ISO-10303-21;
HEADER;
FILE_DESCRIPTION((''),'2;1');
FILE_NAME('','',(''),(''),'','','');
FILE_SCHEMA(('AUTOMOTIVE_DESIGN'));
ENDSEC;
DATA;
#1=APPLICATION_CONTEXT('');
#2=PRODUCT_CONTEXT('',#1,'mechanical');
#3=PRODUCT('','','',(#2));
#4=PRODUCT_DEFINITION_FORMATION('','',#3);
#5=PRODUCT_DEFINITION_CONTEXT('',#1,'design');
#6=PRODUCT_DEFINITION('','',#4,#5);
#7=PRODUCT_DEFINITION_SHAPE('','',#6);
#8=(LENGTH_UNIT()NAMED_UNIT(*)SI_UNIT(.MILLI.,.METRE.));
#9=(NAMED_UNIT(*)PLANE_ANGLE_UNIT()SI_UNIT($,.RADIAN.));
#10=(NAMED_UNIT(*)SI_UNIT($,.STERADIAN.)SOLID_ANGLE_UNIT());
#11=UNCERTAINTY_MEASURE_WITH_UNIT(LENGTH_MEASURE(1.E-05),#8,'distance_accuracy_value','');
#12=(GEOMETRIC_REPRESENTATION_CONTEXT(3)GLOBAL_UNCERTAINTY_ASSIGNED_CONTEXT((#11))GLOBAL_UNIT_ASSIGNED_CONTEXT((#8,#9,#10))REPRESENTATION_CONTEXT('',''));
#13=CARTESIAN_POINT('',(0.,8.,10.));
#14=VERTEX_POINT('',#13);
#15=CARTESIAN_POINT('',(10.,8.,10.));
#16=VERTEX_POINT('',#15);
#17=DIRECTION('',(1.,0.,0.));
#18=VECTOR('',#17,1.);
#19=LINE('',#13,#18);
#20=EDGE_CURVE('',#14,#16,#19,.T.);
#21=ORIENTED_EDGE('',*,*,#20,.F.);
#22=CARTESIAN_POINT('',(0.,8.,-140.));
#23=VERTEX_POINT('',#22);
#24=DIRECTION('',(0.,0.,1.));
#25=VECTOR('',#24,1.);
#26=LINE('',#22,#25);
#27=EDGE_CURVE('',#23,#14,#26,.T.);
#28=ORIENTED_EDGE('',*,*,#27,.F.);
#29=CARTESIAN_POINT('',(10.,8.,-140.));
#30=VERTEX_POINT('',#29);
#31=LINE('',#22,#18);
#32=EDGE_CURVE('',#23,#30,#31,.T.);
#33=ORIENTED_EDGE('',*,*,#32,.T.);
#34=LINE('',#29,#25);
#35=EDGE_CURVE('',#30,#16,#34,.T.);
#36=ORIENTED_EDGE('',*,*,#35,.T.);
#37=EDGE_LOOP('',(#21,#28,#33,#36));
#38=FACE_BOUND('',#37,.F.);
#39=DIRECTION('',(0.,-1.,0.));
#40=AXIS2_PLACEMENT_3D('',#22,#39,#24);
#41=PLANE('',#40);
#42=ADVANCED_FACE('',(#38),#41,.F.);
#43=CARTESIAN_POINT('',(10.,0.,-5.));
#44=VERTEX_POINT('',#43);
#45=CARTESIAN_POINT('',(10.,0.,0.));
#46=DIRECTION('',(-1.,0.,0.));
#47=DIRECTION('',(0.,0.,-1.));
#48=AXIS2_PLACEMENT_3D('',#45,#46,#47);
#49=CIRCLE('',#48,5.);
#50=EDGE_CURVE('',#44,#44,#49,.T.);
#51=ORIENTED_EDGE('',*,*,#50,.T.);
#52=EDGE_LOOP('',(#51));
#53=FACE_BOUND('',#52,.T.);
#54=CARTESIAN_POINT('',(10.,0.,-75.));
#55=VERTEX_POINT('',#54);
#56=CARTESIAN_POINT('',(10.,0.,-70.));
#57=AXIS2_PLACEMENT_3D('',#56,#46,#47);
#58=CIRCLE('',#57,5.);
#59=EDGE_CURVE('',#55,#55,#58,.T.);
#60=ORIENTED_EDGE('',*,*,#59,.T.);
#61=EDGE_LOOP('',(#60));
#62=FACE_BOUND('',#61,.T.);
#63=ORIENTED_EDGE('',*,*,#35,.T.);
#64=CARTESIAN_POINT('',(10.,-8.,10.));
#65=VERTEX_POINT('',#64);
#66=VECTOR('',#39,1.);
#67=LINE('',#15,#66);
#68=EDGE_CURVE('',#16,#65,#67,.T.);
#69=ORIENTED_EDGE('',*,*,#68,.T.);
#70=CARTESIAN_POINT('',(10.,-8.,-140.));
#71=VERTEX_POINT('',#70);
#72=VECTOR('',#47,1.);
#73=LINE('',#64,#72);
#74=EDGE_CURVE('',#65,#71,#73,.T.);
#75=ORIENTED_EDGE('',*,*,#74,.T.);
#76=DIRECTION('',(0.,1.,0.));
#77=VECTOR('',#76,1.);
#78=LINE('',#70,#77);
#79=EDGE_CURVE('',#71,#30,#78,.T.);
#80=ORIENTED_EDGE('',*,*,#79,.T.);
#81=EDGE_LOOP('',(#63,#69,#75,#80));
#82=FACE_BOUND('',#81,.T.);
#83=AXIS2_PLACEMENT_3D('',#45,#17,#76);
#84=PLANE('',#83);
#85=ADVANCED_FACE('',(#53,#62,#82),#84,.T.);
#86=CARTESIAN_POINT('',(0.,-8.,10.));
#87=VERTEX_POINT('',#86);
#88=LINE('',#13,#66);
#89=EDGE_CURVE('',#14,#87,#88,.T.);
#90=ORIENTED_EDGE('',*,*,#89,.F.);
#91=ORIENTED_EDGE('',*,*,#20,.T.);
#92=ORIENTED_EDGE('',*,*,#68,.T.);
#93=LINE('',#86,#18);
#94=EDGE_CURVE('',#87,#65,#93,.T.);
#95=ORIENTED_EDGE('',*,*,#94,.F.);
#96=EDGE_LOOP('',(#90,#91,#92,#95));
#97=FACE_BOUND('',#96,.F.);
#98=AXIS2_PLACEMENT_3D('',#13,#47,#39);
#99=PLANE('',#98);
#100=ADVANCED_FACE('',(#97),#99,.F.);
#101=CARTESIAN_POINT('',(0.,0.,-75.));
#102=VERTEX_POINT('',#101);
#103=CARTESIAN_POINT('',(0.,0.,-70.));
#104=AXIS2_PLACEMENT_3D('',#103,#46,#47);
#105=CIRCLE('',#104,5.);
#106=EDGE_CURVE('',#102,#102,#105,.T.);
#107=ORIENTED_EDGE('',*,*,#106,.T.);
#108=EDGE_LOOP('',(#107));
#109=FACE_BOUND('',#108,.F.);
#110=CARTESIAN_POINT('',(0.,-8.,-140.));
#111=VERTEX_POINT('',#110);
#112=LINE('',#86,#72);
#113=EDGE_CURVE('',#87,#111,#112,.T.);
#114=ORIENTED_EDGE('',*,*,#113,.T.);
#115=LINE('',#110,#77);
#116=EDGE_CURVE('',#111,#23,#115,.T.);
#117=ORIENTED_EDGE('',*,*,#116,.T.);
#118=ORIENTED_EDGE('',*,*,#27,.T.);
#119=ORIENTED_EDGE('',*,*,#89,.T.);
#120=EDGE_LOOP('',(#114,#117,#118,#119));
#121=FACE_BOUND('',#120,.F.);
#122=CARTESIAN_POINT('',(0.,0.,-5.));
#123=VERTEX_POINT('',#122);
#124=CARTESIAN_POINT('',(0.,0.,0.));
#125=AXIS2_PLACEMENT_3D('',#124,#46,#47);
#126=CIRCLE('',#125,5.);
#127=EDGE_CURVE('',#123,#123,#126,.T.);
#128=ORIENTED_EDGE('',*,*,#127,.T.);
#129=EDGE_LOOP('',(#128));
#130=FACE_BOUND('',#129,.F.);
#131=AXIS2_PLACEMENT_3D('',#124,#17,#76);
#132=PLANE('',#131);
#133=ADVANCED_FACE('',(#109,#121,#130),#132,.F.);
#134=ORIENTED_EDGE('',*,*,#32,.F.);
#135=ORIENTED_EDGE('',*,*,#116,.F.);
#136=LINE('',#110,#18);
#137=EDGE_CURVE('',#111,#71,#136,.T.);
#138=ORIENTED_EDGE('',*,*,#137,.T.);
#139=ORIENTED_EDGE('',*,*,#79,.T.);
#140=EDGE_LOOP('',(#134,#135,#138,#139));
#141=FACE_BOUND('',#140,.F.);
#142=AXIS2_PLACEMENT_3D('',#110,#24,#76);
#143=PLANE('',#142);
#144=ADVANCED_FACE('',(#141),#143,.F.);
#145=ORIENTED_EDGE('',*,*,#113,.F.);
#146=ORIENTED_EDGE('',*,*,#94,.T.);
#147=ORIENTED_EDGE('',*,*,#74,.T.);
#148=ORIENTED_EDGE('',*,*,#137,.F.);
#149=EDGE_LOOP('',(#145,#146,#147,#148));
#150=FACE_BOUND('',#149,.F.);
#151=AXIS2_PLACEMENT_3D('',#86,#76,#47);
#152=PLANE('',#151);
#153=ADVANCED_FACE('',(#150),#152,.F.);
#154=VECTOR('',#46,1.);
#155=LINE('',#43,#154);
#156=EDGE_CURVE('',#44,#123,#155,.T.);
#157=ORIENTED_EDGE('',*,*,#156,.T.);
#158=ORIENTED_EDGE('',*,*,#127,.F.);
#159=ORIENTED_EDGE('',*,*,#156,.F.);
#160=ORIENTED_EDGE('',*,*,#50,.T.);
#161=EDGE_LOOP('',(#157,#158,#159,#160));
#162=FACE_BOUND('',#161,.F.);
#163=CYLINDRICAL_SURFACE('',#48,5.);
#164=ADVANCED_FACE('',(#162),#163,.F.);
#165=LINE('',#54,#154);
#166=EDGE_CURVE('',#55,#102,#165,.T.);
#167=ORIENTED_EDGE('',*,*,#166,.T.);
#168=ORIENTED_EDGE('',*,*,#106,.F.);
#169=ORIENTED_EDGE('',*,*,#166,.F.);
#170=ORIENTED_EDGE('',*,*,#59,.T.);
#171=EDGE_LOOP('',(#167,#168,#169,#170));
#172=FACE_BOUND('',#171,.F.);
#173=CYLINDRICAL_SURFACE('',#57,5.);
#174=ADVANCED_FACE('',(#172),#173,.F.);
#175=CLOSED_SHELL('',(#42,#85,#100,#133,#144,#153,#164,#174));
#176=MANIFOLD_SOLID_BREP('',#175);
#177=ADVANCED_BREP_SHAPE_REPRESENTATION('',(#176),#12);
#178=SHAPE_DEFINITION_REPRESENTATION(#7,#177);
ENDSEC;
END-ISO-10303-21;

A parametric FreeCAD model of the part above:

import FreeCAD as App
import Part
import Sketcher
Q = App.Units.Quantity

doc = App.newDocument("Part")
body = doc.addObject("PartDesign::Body", "Body")

sketch1 = body.newObject("Sketcher::SketchObject", "Sketch")
sketch1.AttachmentSupport = (doc.getObject("YZ_Plane"), [""])
sketch1.MapMode = "FlatFace"
sketch1.addGeometry(Part.LineSegment(App.Vector(8, -140, 0), App.Vector(8, 10, 0)), False)
sketch1.addGeometry(Part.LineSegment(App.Vector(8, 10, 0), App.Vector(-8, 10, 0)), False)
sketch1.addGeometry(Part.LineSegment(App.Vector(-8, 10, 0), App.Vector(-8, -140, 0)), False)
sketch1.addGeometry(Part.LineSegment(App.Vector(-8, -140, 0), App.Vector(8, -140, 0)), False)
sketch1.addConstraint(Sketcher.Constraint("Coincident", 0, 2, 1, 1))
sketch1.addConstraint(Sketcher.Constraint("Coincident", 1, 2, 2, 1))
sketch1.addConstraint(Sketcher.Constraint("Coincident", 2, 2, 3, 1))
sketch1.addConstraint(Sketcher.Constraint("Coincident", 3, 2, 0, 1))
sketch1.addConstraint(Sketcher.Constraint("Vertical", 0))
sketch1.addConstraint(Sketcher.Constraint("Horizontal", 1))
sketch1.addConstraint(Sketcher.Constraint("Vertical", 2))
sketch1.addConstraint(Sketcher.Constraint("Horizontal", 3))
sketch1.addConstraint(Sketcher.Constraint("DistanceX", 1, 2, 1, 1, Q("16 mm")))
sketch1.addConstraint(Sketcher.Constraint("DistanceY", 0, 1, 0, 2, Q("150 mm")))
sketch1.addConstraint(Sketcher.Constraint("DistanceX", -1, 1, 0, 2, Q("8 mm")))
sketch1.addConstraint(Sketcher.Constraint("DistanceY", -1, 1, 0, 2, Q("10 mm")))
pad1 = body.newObject("PartDesign::Pad", "Pad")
pad1.Profile = sketch1
pad1.Length = 10

sketch2 = body.newObject("Sketcher::SketchObject", "Sketch001")
sketch2.AttachmentSupport = (doc.getObject("YZ_Plane"), [""])
sketch2.MapMode = "FlatFace"
sketch2.AttachmentOffset = App.Placement(App.Vector(0, 0, 10), App.Rotation())
sketch2.addGeometry(Part.Circle(App.Vector(0, 0, 0), App.Vector(0, 0, 1), 5), False)
sketch2.addConstraint(Sketcher.Constraint("Coincident", 0, 3, -1, 1))
sketch2.addConstraint(Sketcher.Constraint("Diameter", 0, Q("10 mm")))
doc.recompute()
hole = body.newObject("PartDesign::Hole", "Hole")
hole.Profile = sketch2
hole.ThreadType = "None"
hole.Diameter = 10
hole.DepthType = "Dimension"
hole.Depth = 22
hole.DrillPoint = "Angled"
hole.DrillPointAngle = 118

sketch3 = body.newObject("Sketcher::SketchObject", "Sketch002")
sketch3.AttachmentSupport = (doc.getObject("YZ_Plane"), [""])
sketch3.MapMode = "FlatFace"
sketch3.AttachmentOffset = App.Placement(App.Vector(0, 0, 10), App.Rotation())
sketch3.addGeometry(Part.Circle(App.Vector(0, -70, 0), App.Vector(0, 0, 1), 5), False)
sketch3.addConstraint(Sketcher.Constraint("PointOnObject", 0, 3, -2))
sketch3.addConstraint(Sketcher.Constraint("Diameter", 0, Q("10 mm")))
sketch3.addConstraint(Sketcher.Constraint("DistanceY", 0, 3, -1, 1, Q("70 mm")))
doc.recompute()
hole2 = body.newObject("PartDesign::Hole", "Hole001")
hole2.Profile = sketch3
hole2.ThreadType = "None"
hole2.Diameter = 10
hole2.DepthType = "Dimension"
hole2.Depth = 22
hole2.DrillPoint = "Angled"
hole2.DrillPointAngle = 118

doc.recompute()
